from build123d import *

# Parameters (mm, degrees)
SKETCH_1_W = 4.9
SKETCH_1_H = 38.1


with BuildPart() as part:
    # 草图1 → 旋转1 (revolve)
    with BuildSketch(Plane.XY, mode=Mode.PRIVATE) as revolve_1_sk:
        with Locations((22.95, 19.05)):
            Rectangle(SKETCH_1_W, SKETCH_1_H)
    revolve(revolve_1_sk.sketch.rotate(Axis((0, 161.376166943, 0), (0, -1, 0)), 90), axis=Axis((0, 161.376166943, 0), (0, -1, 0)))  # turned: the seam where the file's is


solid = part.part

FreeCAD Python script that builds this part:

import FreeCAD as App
import Part
import Sketcher

doc = App.newDocument("Part")
params = doc.addObject("Spreadsheet::Sheet", "Params")
for row, (alias, value) in enumerate([
    ("sketch1_width", "4.9 mm"),
    ("sketch1_height", "38.1 mm"),
    ("revolution_angle", "360 deg"),
], start=1):
    params.set(f"A{row}", alias)
    params.set(f"B{row}", "=" + value)
    params.setAlias(f"B{row}", alias)

body = doc.addObject("PartDesign::Body", "Body")

# Sketch on XY plane
sketch1 = body.newObject("Sketcher::SketchObject", "Sketch")
sketch1.AttachmentSupport = (doc.getObject("XY_Plane"), [""])
sketch1.MapMode = "FlatFace"
sketch1.addGeometry(Part.LineSegment(App.Vector(20.5, 38.1, 0), App.Vector(20.5, 0, 0)), False)
sketch1.addGeometry(Part.LineSegment(App.Vector(20.5, 0, 0), App.Vector(25.4, 0, 0)), False)
sketch1.addGeometry(Part.LineSegment(App.Vector(25.4, 0, 0), App.Vector(25.4, 38.1, 0)), False)
sketch1.addGeometry(Part.LineSegment(App.Vector(25.4, 38.1, 0), App.Vector(20.5, 38.1, 0)), False)
sketch1.addConstraint(Sketcher.Constraint("Coincident", 0, 2, 1, 1))
sketch1.addConstraint(Sketcher.Constraint("Coincident", 1, 2, 2, 1))
sketch1.addConstraint(Sketcher.Constraint("Coincident", 2, 2, 3, 1))
sketch1.addConstraint(Sketcher.Constraint("Coincident", 3, 2, 0, 1))
sketch1.addConstraint(Sketcher.Constraint("Vertical", 0))
sketch1.addConstraint(Sketcher.Constraint("Horizontal", 1))
sketch1.addConstraint(Sketcher.Constraint("Vertical", 2))
sketch1.addConstraint(Sketcher.Constraint("Horizontal", 3))
sketch1.addConstraint(Sketcher.Constraint("PointOnObject", 0, 2, -1))
sketch1.addConstraint(Sketcher.Constraint("DistanceX", 1, 1, 1, 2, 4.9))
sketch1.addConstraint(Sketcher.Constraint("DistanceY", 0, 2, 0, 1, 38.1))
sketch1.addConstraint(Sketcher.Constraint("DistanceX", -1, 1, 0, 2, 20.5))
sketch1.setExpression("Constraints[9]", "Params.sketch1_width")
sketch1.setExpression("Constraints[10]", "Params.sketch1_height")
revolution = body.newObject("PartDesign::Revolution", "Revolution")
revolution.Profile = sketch1
revolution.ReferenceAxis = (sketch1, ["V_Axis"])
revolution.setExpression("Angle", "Params.revolution_angle")

doc.recompute()
